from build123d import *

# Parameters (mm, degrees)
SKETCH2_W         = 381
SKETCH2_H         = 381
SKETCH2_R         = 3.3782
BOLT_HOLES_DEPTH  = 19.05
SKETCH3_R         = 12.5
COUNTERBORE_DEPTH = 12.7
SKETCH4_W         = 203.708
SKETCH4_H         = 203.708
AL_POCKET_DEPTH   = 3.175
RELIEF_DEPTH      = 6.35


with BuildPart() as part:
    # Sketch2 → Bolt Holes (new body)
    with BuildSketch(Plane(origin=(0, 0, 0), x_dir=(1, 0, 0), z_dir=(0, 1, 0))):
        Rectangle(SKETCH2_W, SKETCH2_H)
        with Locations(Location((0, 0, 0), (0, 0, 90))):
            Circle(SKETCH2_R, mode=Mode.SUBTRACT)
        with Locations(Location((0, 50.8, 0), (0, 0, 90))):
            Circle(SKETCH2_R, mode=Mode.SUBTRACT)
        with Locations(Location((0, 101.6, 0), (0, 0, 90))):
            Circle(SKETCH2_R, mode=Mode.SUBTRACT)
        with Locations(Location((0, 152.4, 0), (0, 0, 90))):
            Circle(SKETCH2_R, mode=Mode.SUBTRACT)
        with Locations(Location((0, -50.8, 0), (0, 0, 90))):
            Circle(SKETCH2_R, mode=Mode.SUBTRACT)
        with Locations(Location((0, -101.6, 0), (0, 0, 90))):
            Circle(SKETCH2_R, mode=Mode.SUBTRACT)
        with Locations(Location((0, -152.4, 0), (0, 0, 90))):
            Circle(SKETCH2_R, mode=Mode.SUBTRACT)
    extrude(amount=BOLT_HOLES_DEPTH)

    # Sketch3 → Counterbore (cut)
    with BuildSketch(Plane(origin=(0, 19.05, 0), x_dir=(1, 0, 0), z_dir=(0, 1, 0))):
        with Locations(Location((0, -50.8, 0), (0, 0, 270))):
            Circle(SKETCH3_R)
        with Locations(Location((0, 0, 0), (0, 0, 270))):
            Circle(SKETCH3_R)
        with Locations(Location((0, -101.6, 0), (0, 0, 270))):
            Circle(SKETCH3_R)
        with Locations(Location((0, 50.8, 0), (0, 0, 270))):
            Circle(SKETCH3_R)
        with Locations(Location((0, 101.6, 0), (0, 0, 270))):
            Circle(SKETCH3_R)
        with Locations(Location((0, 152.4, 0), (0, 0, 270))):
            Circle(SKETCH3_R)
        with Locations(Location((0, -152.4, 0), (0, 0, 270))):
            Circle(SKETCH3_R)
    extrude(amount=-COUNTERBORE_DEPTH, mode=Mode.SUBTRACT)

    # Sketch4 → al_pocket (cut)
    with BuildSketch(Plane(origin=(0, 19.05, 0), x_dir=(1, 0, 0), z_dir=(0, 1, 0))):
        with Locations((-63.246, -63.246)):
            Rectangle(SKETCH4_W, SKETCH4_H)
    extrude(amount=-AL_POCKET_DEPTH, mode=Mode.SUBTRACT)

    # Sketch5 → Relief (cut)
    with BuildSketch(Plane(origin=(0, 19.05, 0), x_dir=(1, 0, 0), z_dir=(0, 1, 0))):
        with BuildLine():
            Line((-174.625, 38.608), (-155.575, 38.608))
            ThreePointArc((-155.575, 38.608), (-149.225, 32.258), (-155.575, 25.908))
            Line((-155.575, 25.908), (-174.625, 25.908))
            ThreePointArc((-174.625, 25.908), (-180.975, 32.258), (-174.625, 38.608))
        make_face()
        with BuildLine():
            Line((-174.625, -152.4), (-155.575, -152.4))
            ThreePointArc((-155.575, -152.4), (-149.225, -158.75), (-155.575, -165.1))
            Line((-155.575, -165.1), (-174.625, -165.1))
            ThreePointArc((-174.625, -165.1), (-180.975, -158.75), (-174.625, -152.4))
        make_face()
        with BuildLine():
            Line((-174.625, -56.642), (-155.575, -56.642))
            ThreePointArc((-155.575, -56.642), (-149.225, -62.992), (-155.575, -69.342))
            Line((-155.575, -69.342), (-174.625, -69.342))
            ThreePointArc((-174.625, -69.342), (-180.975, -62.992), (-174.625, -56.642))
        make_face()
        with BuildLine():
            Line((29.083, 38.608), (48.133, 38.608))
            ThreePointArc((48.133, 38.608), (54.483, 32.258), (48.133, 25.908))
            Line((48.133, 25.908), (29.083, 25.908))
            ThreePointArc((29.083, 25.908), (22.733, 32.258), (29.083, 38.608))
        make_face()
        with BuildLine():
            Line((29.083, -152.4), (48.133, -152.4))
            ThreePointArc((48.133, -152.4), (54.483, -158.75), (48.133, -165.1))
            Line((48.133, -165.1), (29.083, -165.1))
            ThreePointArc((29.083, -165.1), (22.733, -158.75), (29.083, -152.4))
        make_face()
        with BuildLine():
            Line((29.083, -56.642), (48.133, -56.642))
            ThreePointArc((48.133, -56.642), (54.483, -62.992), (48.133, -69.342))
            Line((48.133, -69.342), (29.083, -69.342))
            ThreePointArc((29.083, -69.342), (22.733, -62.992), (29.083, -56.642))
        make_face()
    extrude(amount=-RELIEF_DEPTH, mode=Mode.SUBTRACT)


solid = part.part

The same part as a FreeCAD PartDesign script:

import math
import FreeCAD as App
import Part
import Sketcher
Q = App.Units.Quantity

doc = App.newDocument("Part")
params = doc.addObject("Spreadsheet::Sheet", "Params")
for row, (alias, value) in enumerate([
    ("sketch1_width", "15 in"),
    ("sketch1_diameter", "0.266 in"),
    ("pad1_length", "0.75 in"),
    ("pocket1_length", "0.5 in"),
    ("sketch3_width", "8.02 in"),
    ("pocket2_length", "0.125 in"),
    ("sketch4_radius", "0.25 in"),
    ("sketch4_width", "0.75 in"),
    ("pocket3_length", "0.25 in"),
], start=1):
    params.set(f"A{row}", alias)
    params.set(f"B{row}", "=" + value)
    params.setAlias(f"B{row}", alias)

body = doc.addObject("PartDesign::Body", "Body")

# Sketch on XZ plane
sketch1 = body.newObject("Sketcher::SketchObject", "Sketch")
sketch1.AttachmentSupport = (doc.getObject("XZ_Plane"), [""])
sketch1.MapMode = "FlatFace"
sketch1.addGeometry([
    Part.LineSegment(App.Vector(-190.5, -190.5, 0), App.Vector(-190.5, 190.5, 0)),  # 0
    Part.LineSegment(App.Vector(-190.5, 190.5, 0), App.Vector(190.5, 190.5, 0)),  # 1
    Part.LineSegment(App.Vector(190.5, 190.5, 0), App.Vector(190.5, -190.5, 0)),  # 2
    Part.LineSegment(App.Vector(190.5, -190.5, 0), App.Vector(-190.5, -190.5, 0)),  # 3
    Part.Circle(App.Vector(0, 152.4, 0), App.Vector(0, 0, 1), 3.3782),  # 4
    Part.Circle(App.Vector(0, 101.6, 0), App.Vector(0, 0, 1), 3.3782),  # 5
    Part.Circle(App.Vector(0, 50.8, 0), App.Vector(0, 0, 1), 3.3782),  # 6
    Part.Circle(App.Vector(0, 0, 0), App.Vector(0, 0, 1), 3.3782),  # 7
    Part.Circle(App.Vector(0, -50.8, 0), App.Vector(0, 0, 1), 3.3782),  # 8
    Part.Circle(App.Vector(0, -101.6, 0), App.Vector(0, 0, 1), 3.3782),  # 9
    Part.Circle(App.Vector(0, -152.4, 0), App.Vector(0, 0, 1), 3.3782),  # 10
], False)
sketch1.addConstraint([
    Sketcher.Constraint("Coincident", 0, 2, 1, 1),
    Sketcher.Constraint("Coincident", 1, 2, 2, 1),
    Sketcher.Constraint("Coincident", 2, 2, 3, 1),
    Sketcher.Constraint("Coincident", 3, 2, 0, 1),
    Sketcher.Constraint("Vertical", 0),
    Sketcher.Constraint("Horizontal", 1),
    Sketcher.Constraint("Vertical", 2),
    Sketcher.Constraint("Horizontal", 3),
    Sketcher.Constraint("Coincident", 7, 3, -1, 1),
    Sketcher.Constraint("Equal", 4, 5),
    Sketcher.Constraint("Equal", 5, 6),
    Sketcher.Constraint("Equal", 6, 7),
    Sketcher.Constraint("Equal", 7, 8),
    Sketcher.Constraint("Equal", 8, 9),
    Sketcher.Constraint("Equal", 9, 10),
    Sketcher.Constraint("Symmetric", 6, 3, 8, 3, -1, 1),
    Sketcher.Constraint("Symmetric", 5, 3, 9, 3, -1, 1),
    Sketcher.Constraint("Symmetric", 4, 3, 10, 3, -1, 1),
    Sketcher.Constraint("Symmetric", 0, 2, 2, 2, -1, 1),
    Sketcher.Constraint("PointOnObject", 4, 3, -2),
    Sketcher.Constraint("PointOnObject", 5, 3, -2),
    Sketcher.Constraint("PointOnObject", 6, 3, -2),
    Sketcher.Constraint("Equal", 3, 0),
    Sketcher.Constraint("DistanceX", 1, 1, 1, 2, Q("15 in")),
    Sketcher.Constraint("Diameter", 4, Q("0.266 in")),
    Sketcher.Constraint("DistanceY", -1, 1, 4, 3, Q("6 in")),
    Sketcher.Constraint("DistanceY", -1, 1, 5, 3, Q("4 in")),
    Sketcher.Constraint("DistanceY", -1, 1, 6, 3, Q("2 in")),
])
sketch1.setExpression("Constraints[23]", "Params.sketch1_width")
sketch1.setExpression("Constraints[24]", "Params.sketch1_diameter")
pad1 = body.newObject("PartDesign::Pad", "Pad")
pad1.Profile = sketch1
pad1.setExpression("Length", "Params.pad1_length")
pad1.Reversed = True

# Sketch on XZ plane
sketch2 = body.newObject("Sketcher::SketchObject", "Sketch001")
sketch2.AttachmentSupport = (doc.getObject("XZ_Plane"), [""])
sketch2.MapMode = "FlatFace"
sketch2.AttachmentOffset = App.Placement(App.Vector(0, 0, -0.75 * 25.4), App.Rotation())
sketch2.addGeometry([
    Part.Circle(App.Vector(0, 50.8, 0), App.Vector(0, 0, 1), 12.5),  # 0
    Part.Circle(App.Vector(0, 0, 0), App.Vector(0, 0, 1), 12.5),  # 1
    Part.Circle(App.Vector(0, 101.6, 0), App.Vector(0, 0, 1), 12.5),  # 2
    Part.Circle(App.Vector(0, -50.8, 0), App.Vector(0, 0, 1), 12.5),  # 3
    Part.Circle(App.Vector(0, -101.6, 0), App.Vector(0, 0, 1), 12.5),  # 4
    Part.Circle(App.Vector(0, -152.4, 0), App.Vector(0, 0, 1), 12.5),  # 5
    Part.Circle(App.Vector(0, 152.4, 0), App.Vector(0, 0, 1), 12.5),  # 6
], False)
sketch2.addConstraint([
    Sketcher.Constraint("Coincident", 1, 3, -1, 1),
    Sketcher.Constraint("Equal", 0, 1),
    Sketcher.Constraint("Equal", 1, 2),
    Sketcher.Constraint("Equal", 2, 3),
    Sketcher.Constraint("Equal", 3, 4),
    Sketcher.Constraint("Equal", 4, 5),
    Sketcher.Constraint("Equal", 5, 6),
    Sketcher.Constraint("Symmetric", 0, 3, 3, 3, -1, 1),
    Sketcher.Constraint("Symmetric", 2, 3, 4, 3, -1, 1),
    Sketcher.Constraint("Symmetric", 5, 3, 6, 3, -1, 1),
    Sketcher.Constraint("PointOnObject", 0, 3, -2),
    Sketcher.Constraint("PointOnObject", 2, 3, -2),
    Sketcher.Constraint("PointOnObject", 5, 3, -2),
    Sketcher.Constraint("DistanceY", -1, 1, 0, 3, Q("2 in")),
    Sketcher.Constraint("DistanceY", -1, 1, 2, 3, Q("4 in")),
    Sketcher.Constraint("DistanceY", 5, 3, -1, 1, Q("6 in")),
    Sketcher.Constraint("Diameter", 0, 25.0),
])
pocket1 = body.newObject("PartDesign::Pocket", "Pocket")
pocket1.Profile = sketch2
pocket1.setExpression("Length", "Params.pocket1_length")
pocket1.Reversed = True

# Sketch on XZ plane
sketch3 = body.newObject("Sketcher::SketchObject", "Sketch002")
sketch3.AttachmentSupport = (doc.getObject("XZ_Plane"), [""])
sketch3.MapMode = "FlatFace"
sketch3.AttachmentOffset = App.Placement(App.Vector(0, 0, -0.75 * 25.4), App.Rotation())
sketch3.addGeometry([
    Part.LineSegment(App.Vector(-165.1, -38.608, 0), App.Vector(-165.1, 165.1, 0)),
    Part.LineSegment(App.Vector(-165.1, 165.1, 0), App.Vector(38.608, 165.1, 0)),
    Part.LineSegment(App.Vector(38.608, 165.1, 0), App.Vector(38.608, -38.608, 0)),
    Part.LineSegment(App.Vector(38.608, -38.608, 0), App.Vector(-165.1, -38.608, 0)),
], False)
sketch3.addConstraint([
    Sketcher.Constraint("Coincident", 0, 2, 1, 1),
    Sketcher.Constraint("Coincident", 1, 2, 2, 1),
    Sketcher.Constraint("Coincident", 2, 2, 3, 1),
    Sketcher.Constraint("Coincident", 3, 2, 0, 1),
    Sketcher.Constraint("Vertical", 0),
    Sketcher.Constraint("Horizontal", 1),
    Sketcher.Constraint("Vertical", 2),
    Sketcher.Constraint("Horizontal", 3),
    Sketcher.Constraint("Equal", 3, 0),
    Sketcher.Constraint("DistanceX", 1, 1, 1, 2, Q("8.02 in")),
    Sketcher.Constraint("DistanceX", 0, 2, -1, 1, Q("6.5 in")),
    Sketcher.Constraint("DistanceY", -1, 1, 0, 2, Q("6.5 in")),
])
sketch3.setExpression("Constraints[9]", "Params.sketch3_width")
pocket2 = body.newObject("PartDesign::Pocket", "Pocket001")
pocket2.Profile = sketch3
pocket2.setExpression("Length", "Params.pocket2_length")
pocket2.Reversed = True

# Sketch on XZ plane
sketch4 = body.newObject("Sketcher::SketchObject", "Sketch003")
sketch4.AttachmentSupport = (doc.getObject("XZ_Plane"), [""])
sketch4.MapMode = "FlatFace"
sketch4.AttachmentOffset = App.Placement(App.Vector(0, 0, -0.75 * 25.4), App.Rotation())
sketch4.addGeometry([
    Part.LineSegment(App.Vector(-155.575, -38.608, 0), App.Vector(-174.625, -38.608, 0)),  # 0
    Part.ArcOfCircle(Part.Circle(App.Vector(-174.625, -32.258, 0), App.Vector(0, 0, 1), 6.35), math.radians(90), math.radians(270)),  # 1
    Part.LineSegment(App.Vector(-174.625, -25.908, 0), App.Vector(-155.575, -25.908, 0)),  # 2
    Part.ArcOfCircle(Part.Circle(App.Vector(-155.575, -32.258, 0), App.Vector(0, 0, 1), 6.35), math.radians(-90), math.radians(90)),  # 3
    Part.LineSegment(App.Vector(-155.575, 152.4, 0), App.Vector(-174.625, 152.4, 0)),  # 4
    Part.ArcOfCircle(Part.Circle(App.Vector(-174.625, 158.75, 0), App.Vector(0, 0, 1), 6.35), math.radians(90), math.radians(270)),  # 5
    Part.LineSegment(App.Vector(-174.625, 165.1, 0), App.Vector(-155.575, 165.1, 0)),  # 6
    Part.ArcOfCircle(Part.Circle(App.Vector(-155.575, 158.75, 0), App.Vector(0, 0, 1), 6.35), math.radians(-90), math.radians(90)),  # 7
    Part.LineSegment(App.Vector(-155.575, 56.642, 0), App.Vector(-174.625, 56.642, 0)),  # 8
    Part.ArcOfCircle(Part.Circle(App.Vector(-174.625, 62.992, 0), App.Vector(0, 0, 1), 6.35), math.radians(90), math.radians(270)),  # 9
    Part.LineSegment(App.Vector(-174.625, 69.342, 0), App.Vector(-155.575, 69.342, 0)),  # 10
    Part.ArcOfCircle(Part.Circle(App.Vector(-155.575, 62.992, 0), App.Vector(0, 0, 1), 6.35), math.radians(-90), math.radians(90)),  # 11
    Part.LineSegment(App.Vector(48.133, -38.608, 0), App.Vector(29.083, -38.608, 0)),  # 12
    Part.ArcOfCircle(Part.Circle(App.Vector(29.083, -32.258, 0), App.Vector(0, 0, 1), 6.35), math.radians(90), math.radians(270)),  # 13
    Part.LineSegment(App.Vector(29.083, -25.908, 0), App.Vector(48.133, -25.908, 0)),  # 14
    Part.ArcOfCircle(Part.Circle(App.Vector(48.133, -32.258, 0), App.Vector(0, 0, 1), 6.35), math.radians(-90), math.radians(90)),  # 15
    Part.LineSegment(App.Vector(48.133, 152.4, 0), App.Vector(29.083, 152.4, 0)),  # 16
    Part.ArcOfCircle(Part.Circle(App.Vector(29.083, 158.75, 0), App.Vector(0, 0, 1), 6.35), math.radians(90), math.radians(270)),  # 17
    Part.LineSegment(App.Vector(29.083, 165.1, 0), App.Vector(48.133, 165.1, 0)),  # 18
    Part.ArcOfCircle(Part.Circle(App.Vector(48.133, 158.75, 0), App.Vector(0, 0, 1), 6.35), math.radians(-90), math.radians(90)),  # 19
    Part.LineSegment(App.Vector(48.133, 56.642, 0), App.Vector(29.083, 56.642, 0)),  # 20
    Part.ArcOfCircle(Part.Circle(App.Vector(29.083, 62.992, 0), App.Vector(0, 0, 1), 6.35), math.radians(90), math.radians(270)),  # 21
    Part.LineSegment(App.Vector(29.083, 69.342, 0), App.Vector(48.133, 69.342, 0)),  # 22
    Part.ArcOfCircle(Part.Circle(App.Vector(48.133, 62.992, 0), App.Vector(0, 0, 1), 6.35), math.radians(-90), math.radians(90)),  # 23
], False)
sketch4.addConstraint([
    Sketcher.Constraint("Tangent", 0, 2, 1, 2),
    Sketcher.Constraint("Tangent", 1, 1, 2, 1),
    Sketcher.Constraint("Tangent", 2, 2, 3, 2),
    Sketcher.Constraint("Tangent", 3, 1, 0, 1),
    Sketcher.Constraint("Tangent", 4, 2, 5, 2),
    Sketcher.Constraint("Tangent", 5, 1, 6, 1),
    Sketcher.Constraint("Tangent", 6, 2, 7, 2),
    Sketcher.Constraint("Tangent", 7, 1, 4, 1),
    Sketcher.Constraint("Tangent", 8, 2, 9, 2),
    Sketcher.Constraint("Tangent", 9, 1, 10, 1),
    Sketcher.Constraint("Tangent", 10, 2, 11, 2),
    Sketcher.Constraint("Tangent", 11, 1, 8, 1),
    Sketcher.Constraint("Tangent", 12, 2, 13, 2),
    Sketcher.Constraint("Tangent", 13, 1, 14, 1),
    Sketcher.Constraint("Tangent", 14, 2, 15, 2),
    Sketcher.Constraint("Tangent", 15, 1, 12, 1),
    Sketcher.Constraint("Tangent", 16, 2, 17, 2),
    Sketcher.Constraint("Tangent", 17, 1, 18, 1),
    Sketcher.Constraint("Tangent", 18, 2, 19, 2),
    Sketcher.Constraint("Tangent", 19, 1, 16, 1),
    Sketcher.Constraint("Tangent", 20, 2, 21, 2),
    Sketcher.Constraint("Tangent", 21, 1, 22, 1),
    Sketcher.Constraint("Tangent", 22, 2, 23, 2),
    Sketcher.Constraint("Tangent", 23, 1, 20, 1),
    Sketcher.Constraint("Horizontal", 0),
    Sketcher.Constraint("Horizontal", 2),
    Sketcher.Constraint("Horizontal", 4),
    Sketcher.Constraint("Horizontal", 6),
    Sketcher.Constraint("Horizontal", 8),
    Sketcher.Constraint("Horizontal", 10),
    Sketcher.Constraint("Horizontal", 12),
    Sketcher.Constraint("Horizontal", 14),
    Sketcher.Constraint("Horizontal", 16),
    Sketcher.Constraint("Horizontal", 18),
    Sketcher.Constraint("Horizontal", 20),
    Sketcher.Constraint("Horizontal", 22),
    Sketcher.Constraint("Equal", 3, 5),
    Sketcher.Constraint("Equal", 7, 9),
    Sketcher.Constraint("Equal", 11, 13),
    Sketcher.Constraint("Equal", 15, 17),
    Sketcher.Constraint("Equal", 19, 21),
    Sketcher.Constraint("Horizontal", 3, 3, 13, 3),
    Sketcher.Constraint("Horizontal", 7, 3, 17, 3),
    Sketcher.Constraint("Horizontal", 11, 3, 21, 3),
    Sketcher.Constraint("Vertical", 1, 3, 5, 3),
    Sketcher.Constraint("Vertical", 3, 3, 7, 3),
    Sketcher.Constraint("Vertical", 5, 3, 9, 3),
    Sketcher.Constraint("Vertical", 7, 3, 11, 3),
    Sketcher.Constraint("Vertical", 13, 3, 17, 3),
    Sketcher.Constraint("Vertical", 15, 3, 19, 3),
    Sketcher.Constraint("Vertical", 17, 3, 21, 3),
    Sketcher.Constraint("Vertical", 19, 3, 23, 3),
    Sketcher.Constraint("Equal", 10, 12),
    Sketcher.Constraint("Radius", 1, Q("0.25 in")),
    Sketcher.Constraint("DistanceY", -1, 1, 4, 2, Q("6 in")),
    Sketcher.Constraint("DistanceY", 0, 2, 9, 3, Q("4 in")),
    Sketcher.Constraint("DistanceX", 0, 2, 0, 1, Q("0.75 in")),
    Sketcher.Constraint("DistanceY", 1, 3, -1, 1, Q("1.27 in")),
    Sketcher.Constraint("DistanceX", 3, 3, 13, 3, Q("7.27 in")),
    Sketcher.Constraint("DistanceX", 1, 3, -1, 1, Q("6.875 in")),
])
sketch4.setExpression("Constraints[53]", "Params.sketch4_radius")
sketch4.setExpression("Constraints[56]", "Params.sketch4_width")
pocket3 = body.newObject("PartDesign::Pocket", "Pocket002")
pocket3.Profile = sketch4
pocket3.setExpression("Length", "Params.pocket3_length")
pocket3.Reversed = True

doc.recompute()
